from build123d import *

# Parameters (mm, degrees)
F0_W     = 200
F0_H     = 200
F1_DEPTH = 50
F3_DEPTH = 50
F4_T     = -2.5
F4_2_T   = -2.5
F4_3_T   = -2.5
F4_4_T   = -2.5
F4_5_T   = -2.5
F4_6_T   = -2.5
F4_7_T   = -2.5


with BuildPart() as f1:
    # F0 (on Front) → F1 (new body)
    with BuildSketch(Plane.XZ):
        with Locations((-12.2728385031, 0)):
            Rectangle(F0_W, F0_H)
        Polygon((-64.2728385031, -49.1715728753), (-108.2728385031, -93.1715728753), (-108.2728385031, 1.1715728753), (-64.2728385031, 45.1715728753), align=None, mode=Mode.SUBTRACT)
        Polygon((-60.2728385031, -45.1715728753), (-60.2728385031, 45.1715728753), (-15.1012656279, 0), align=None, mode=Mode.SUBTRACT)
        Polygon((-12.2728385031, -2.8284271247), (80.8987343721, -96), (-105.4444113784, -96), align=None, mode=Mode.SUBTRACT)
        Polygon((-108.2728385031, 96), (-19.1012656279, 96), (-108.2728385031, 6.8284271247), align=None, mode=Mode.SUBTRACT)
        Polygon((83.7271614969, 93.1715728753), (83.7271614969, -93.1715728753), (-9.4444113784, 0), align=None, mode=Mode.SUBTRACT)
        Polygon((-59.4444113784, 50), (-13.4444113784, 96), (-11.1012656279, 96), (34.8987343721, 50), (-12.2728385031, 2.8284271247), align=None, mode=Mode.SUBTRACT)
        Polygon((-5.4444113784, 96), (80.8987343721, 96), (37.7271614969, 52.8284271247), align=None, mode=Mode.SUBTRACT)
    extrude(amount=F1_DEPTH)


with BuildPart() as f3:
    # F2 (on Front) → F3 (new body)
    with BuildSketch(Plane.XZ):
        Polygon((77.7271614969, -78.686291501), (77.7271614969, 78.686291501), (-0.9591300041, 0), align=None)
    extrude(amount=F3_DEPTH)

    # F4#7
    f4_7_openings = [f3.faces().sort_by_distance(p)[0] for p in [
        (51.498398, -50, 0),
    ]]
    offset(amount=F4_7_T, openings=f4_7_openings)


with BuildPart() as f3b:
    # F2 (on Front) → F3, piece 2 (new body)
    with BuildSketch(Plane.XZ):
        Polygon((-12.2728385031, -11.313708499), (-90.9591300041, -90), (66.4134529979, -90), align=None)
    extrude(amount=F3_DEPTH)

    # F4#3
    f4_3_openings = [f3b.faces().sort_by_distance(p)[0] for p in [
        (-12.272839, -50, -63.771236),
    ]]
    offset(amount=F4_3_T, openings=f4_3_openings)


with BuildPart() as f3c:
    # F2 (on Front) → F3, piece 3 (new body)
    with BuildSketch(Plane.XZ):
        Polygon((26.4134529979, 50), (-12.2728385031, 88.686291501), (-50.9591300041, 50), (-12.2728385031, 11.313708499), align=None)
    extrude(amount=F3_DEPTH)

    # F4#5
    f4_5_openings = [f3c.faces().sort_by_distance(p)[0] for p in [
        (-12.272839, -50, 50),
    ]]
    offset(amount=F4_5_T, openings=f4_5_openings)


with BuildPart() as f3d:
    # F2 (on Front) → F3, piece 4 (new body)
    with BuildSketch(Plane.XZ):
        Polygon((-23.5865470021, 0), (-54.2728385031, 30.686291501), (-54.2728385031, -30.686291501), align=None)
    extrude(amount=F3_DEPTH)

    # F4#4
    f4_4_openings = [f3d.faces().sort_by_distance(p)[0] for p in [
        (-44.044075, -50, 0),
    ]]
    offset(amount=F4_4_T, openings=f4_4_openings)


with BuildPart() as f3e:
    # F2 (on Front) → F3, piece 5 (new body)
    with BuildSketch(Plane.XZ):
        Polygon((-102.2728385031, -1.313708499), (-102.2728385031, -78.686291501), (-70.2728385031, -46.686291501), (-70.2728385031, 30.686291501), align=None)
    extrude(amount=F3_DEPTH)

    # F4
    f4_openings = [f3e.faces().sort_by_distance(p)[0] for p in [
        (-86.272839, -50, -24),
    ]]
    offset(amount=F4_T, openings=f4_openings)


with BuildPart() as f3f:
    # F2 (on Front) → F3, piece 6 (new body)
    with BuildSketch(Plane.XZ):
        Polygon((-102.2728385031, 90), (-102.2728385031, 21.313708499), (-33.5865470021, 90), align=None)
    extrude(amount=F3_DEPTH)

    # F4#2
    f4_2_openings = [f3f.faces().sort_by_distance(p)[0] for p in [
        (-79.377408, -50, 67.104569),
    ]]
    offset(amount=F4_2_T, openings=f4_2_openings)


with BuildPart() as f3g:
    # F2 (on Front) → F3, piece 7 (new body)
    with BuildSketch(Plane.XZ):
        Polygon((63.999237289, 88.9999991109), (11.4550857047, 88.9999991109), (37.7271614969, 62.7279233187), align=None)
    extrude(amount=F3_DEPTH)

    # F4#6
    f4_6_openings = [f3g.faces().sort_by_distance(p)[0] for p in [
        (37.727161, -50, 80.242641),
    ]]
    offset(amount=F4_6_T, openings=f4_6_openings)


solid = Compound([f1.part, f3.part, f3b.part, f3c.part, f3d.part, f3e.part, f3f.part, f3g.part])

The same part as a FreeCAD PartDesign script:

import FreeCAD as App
import Part
import Sketcher
from FreeCAD import Vector
Q = App.Units.Quantity


def faces_at(feature, points):
    """Names of the faces that lie closest to the given points."""
    faces = feature.Shape.Faces
    near = lambda p: min(range(len(faces)), key=lambda i: faces[i].distToShape(Part.Vertex(*p))[0])
    return sorted({f"Face{near(p) + 1}" for p in points})


def add_polygon(sketch, points):
    """Adds a closed chain of lines whose ends are joined by coincident constraints."""
    first, n = sketch.GeometryCount, len(points)
    for a, b in zip(points, points[1:] + points[:1]):
        sketch.addGeometry(Part.LineSegment(App.Vector(*a, 0), App.Vector(*b, 0)), False)
    for i in range(n):
        sketch.addConstraint(Sketcher.Constraint("Coincident", first + i, 2, first + (i + 1) % n, 1))

doc = App.newDocument("Part")
body = doc.addObject("PartDesign::Body", "Body")

sketch1 = doc.addObject("Sketcher::SketchObject", "Sketch")
body.addObject(sketch1)
sketch1.AttachmentSupport = (doc.XZ_Plane, [""])
sketch1.MapMode = "FlatFace"
add_polygon(sketch1, [(-112.272839, 100), (-112.272839, -100), (87.727161, -100), (87.727161, 100)])
add_polygon(sketch1, [(-105.444411, -96), (-12.272839, -2.828427), (80.898734, -96)])
add_polygon(sketch1, [(-64.272839, 45.171573), (-64.272839, -49.171573), (-108.272839, -93.171573), (-108.272839, 1.171573)])
add_polygon(sketch1, [(-15.101266, 0), (-60.272839, -45.171573), (-60.272839, 45.171573)])
add_polygon(sketch1, [(-108.272839, 6.828427), (-108.272839, 96), (-19.101266, 96)])
add_polygon(sketch1, [(-12.272839, 2.828427), (-59.444411, 50), (-13.444411, 96), (-11.101266, 96), (34.898734, 50)])
add_polygon(sketch1, [(-9.444411, 0), (83.727161, 93.171573), (83.727161, -93.171573)])
add_polygon(sketch1, [(37.727161, 52.828427), (-5.444411, 96), (80.898734, 96)])
sketch1.addConstraint([
    Sketcher.Constraint("Vertical", 0),
    Sketcher.Constraint("Horizontal", 1),
    Sketcher.Constraint("Vertical", 2),
    Sketcher.Constraint("Horizontal", 3),
    Sketcher.Constraint("Horizontal", 6),
    Sketcher.Constraint("Vertical", 7),
    Sketcher.Constraint("Vertical", 9),
    Sketcher.Constraint("Vertical", 12),
    Sketcher.Constraint("Vertical", 14),
    Sketcher.Constraint("Horizontal", 15),
    Sketcher.Constraint("Horizontal", 19),
    Sketcher.Constraint("Vertical", 23),
    Sketcher.Constraint("Horizontal", 26),
    Sketcher.Constraint("Symmetric", 4, 2, 21, 2, -1),
    Sketcher.Constraint("Symmetric", 5, 2, 26, 2, -1),
    Sketcher.Constraint("PointOnObject", 13, 2, -1),
    Sketcher.Constraint("PointOnObject", 24, 2, -1),
    Sketcher.Constraint("Perpendicular", 4, 5),
    Sketcher.Constraint("Perpendicular", 5, 8),
    Sketcher.Constraint("Parallel", 8, 10),
    Sketcher.Constraint("Parallel", 10, 11),
    Sketcher.Constraint("Perpendicular", 11, 13),
    Sketcher.Constraint("Perpendicular", 13, 16),
    Sketcher.Constraint("Perpendicular", 16, 17),
    Sketcher.Constraint("Perpendicular", 17, 18),
    Sketcher.Constraint("Perpendicular", 18, 20),
    Sketcher.Constraint("Perpendicular", 20, 21),
    Sketcher.Constraint("Parallel", 21, 22),
    Sketcher.Constraint("Perpendicular", 22, 24),
    Sketcher.Constraint("Parallel", 24, 25),
    Sketcher.Constraint("Perpendicular", 25, 27),
    Sketcher.Constraint("Horizontal", 10, 2, 12, 2),
    Sketcher.Constraint("Horizontal", 15, 2, 18, 2),
    Sketcher.Constraint("Horizontal", 17, 2, 20, 2),
    Sketcher.Constraint("Horizontal", 8, 2, 23, 2),
    Sketcher.Constraint("Horizontal", 19, 2, 25, 2),
    Sketcher.Constraint("Vertical", 9, 2, 14, 2),
    Sketcher.Constraint("Equal", 3, 0),
    Sketcher.Constraint("Equal", 15, 14),
    Sketcher.Constraint("Equal", 6, 23),
    Sketcher.Constraint("DistanceX", 1, 1, 1, 2, Q("200 mm")),
    Sketcher.Constraint("DistanceY", 0, 2, -1, 1, Q("100 mm")),
    Sketcher.Constraint("DistanceY", 5, 2, -1, 1, Q("96 mm")),
    Sketcher.Constraint("DistanceY", -1, 1, 17, 2, Q("50 mm")),
    Sketcher.Constraint("DistanceX", 0, 2, 4, 2, Q("100 mm")),
    Sketcher.Constraint("DistanceX", 7, 2, 4, 2, Q("52 mm")),
    Sketcher.Constraint("DistanceX", 0, 2, 8, 2, Q("4 mm")),
    Sketcher.Constraint("DistanceY", 4, 2, 9, 2, Q("4 mm")),
    Sketcher.Constraint("DistanceX", 7, 2, 11, 2, Q("4 mm")),
    Sketcher.Constraint("DistanceX", 15, 2, 13, 2, Q("4 mm")),
    Sketcher.Constraint("DistanceX", 22, 2, 2, 2, Q("4 mm")),
    Sketcher.Constraint("DistanceX", 18, 2, 25, 2, Q("8 mm")),
    Sketcher.Constraint("Distance", 4, Q("131.764502 mm")),
    Sketcher.Constraint("DistanceX", 0, 2, -1, 1, Q("112.272839 mm")),
])
pad1 = doc.addObject("PartDesign::Pad", "Pad")
body.addObject(pad1)
pad1.Profile = sketch1
pad1.Length = 50
body2 = doc.addObject("PartDesign::Body", "Body001")

sketch2 = doc.addObject("Sketcher::SketchObject", "Sketch001")
body2.addObject(sketch2)
sketch2.AttachmentSupport = (doc.getObject("XZ_Plane001"), [""])
sketch2.MapMode = "FlatFace"
add_polygon(sketch2, [(77.727161, -78.686292), (77.727161, 78.686292), (-0.95913, 0)])
sketch2.addConstraint([
    Sketcher.Constraint("Vertical", 0),
    Sketcher.Constraint("PointOnObject", 1, 2, -1),
    Sketcher.Constraint("Perpendicular", 1, 2),
    Sketcher.Constraint("Equal", 1, 2),
    Sketcher.Constraint("Distance", 1, Q("111.279221 mm")),
    Sketcher.Constraint("DistanceX", -1, 1, 0, 2, Q("77.727161 mm")),
])
pad2 = doc.addObject("PartDesign::Pad", "Pad001")
body2.addObject(pad2)
pad2.Profile = sketch2
pad2.Length = 50
doc.recompute()

thickness = doc.addObject("PartDesign::Thickness", "Thickness")
body2.addObject(thickness)
thickness.Base = (pad2, faces_at(pad2, [(38.384, -50, 0)]))
thickness.Value = 2.5
thickness.Reversed = True
thickness.Join = "Arc"
body3 = doc.addObject("PartDesign::Body", "Body002")

sketch3 = doc.addObject("Sketcher::SketchObject", "Sketch002")
body3.addObject(sketch3)
sketch3.AttachmentSupport = (doc.getObject("XZ_Plane002"), [""])
sketch3.MapMode = "FlatFace"
add_polygon(sketch3, [(-12.272839, -11.313708), (-90.95913, -90), (66.413453, -90)])
sketch3.addConstraint([
    Sketcher.Constraint("Horizontal", 1),
    Sketcher.Constraint("Perpendicular", 0, 2),
    Sketcher.Constraint("Equal", 0, 2),
    Sketcher.Constraint("DistanceY", 0, 2, -1, 1, Q("90 mm")),
    Sketcher.Constraint("Distance", 0, Q("111.279221 mm")),
    Sketcher.Constraint("DistanceX", 0, 2, -1, 1, Q("90.95913 mm")),
])
pad3 = doc.addObject("PartDesign::Pad", "Pad002")
body3.addObject(pad3)
pad3.Profile = sketch3
pad3.Length = 50
doc.recompute()

thickness2 = doc.addObject("PartDesign::Thickness", "Thickness001")
body3.addObject(thickness2)
thickness2.Base = (pad3, faces_at(pad3, [(-12.273, -50, -50.657)]))
thickness2.Value = 2.5
thickness2.Reversed = True
thickness2.Join = "Arc"
body4 = doc.addObject("PartDesign::Body", "Body003")

sketch4 = doc.addObject("Sketcher::SketchObject", "Sketch003")
body4.addObject(sketch4)
sketch4.AttachmentSupport = (doc.getObject("XZ_Plane003"), [""])
sketch4.MapMode = "FlatFace"
add_polygon(sketch4, [(26.413453, 50), (-12.272839, 88.686292), (-50.95913, 50), (-12.272839, 11.313708)])
sketch4.addConstraint([
    Sketcher.Constraint("Perpendicular", 0, 1),
    Sketcher.Constraint("Perpendicular", 1, 2),
    Sketcher.Constraint("Perpendicular", 2, 3),
    Sketcher.Constraint("Horizontal", 1, 2, 3, 2),
    Sketcher.Constraint("Vertical", 0, 2, 2, 2),
    Sketcher.Constraint("DistanceY", -1, 1, 1, 2, Q("50 mm")),
    Sketcher.Constraint("Distance", 0, Q("54.710678 mm")),
    Sketcher.Constraint("DistanceX", 0, 2, -1, 1, Q("12.272839 mm")),
])
pad4 = doc.addObject("PartDesign::Pad", "Pad003")
body4.addObject(pad4)
pad4.Profile = sketch4
pad4.Length = 50
doc.recompute()

thickness3 = doc.addObject("PartDesign::Thickness", "Thickness002")
body4.addObject(thickness3)
thickness3.Base = (pad4, faces_at(pad4, [(-12.273, -50, 50)]))
thickness3.Value = 2.5
thickness3.Reversed = True
thickness3.Join = "Arc"
body5 = doc.addObject("PartDesign::Body", "Body004")

sketch5 = doc.addObject("Sketcher::SketchObject", "Sketch004")
body5.addObject(sketch5)
sketch5.AttachmentSupport = (doc.getObject("XZ_Plane004"), [""])
sketch5.MapMode = "FlatFace"
add_polygon(sketch5, [(-23.586547, 0), (-54.272839, 30.686292), (-54.272839, -30.686292)])
sketch5.addConstraint([
    Sketcher.Constraint("Vertical", 1),
    Sketcher.Constraint("PointOnObject", 2, 2, -1),
    Sketcher.Constraint("Perpendicular", 0, 2),
    Sketcher.Constraint("Equal", 0, 2),
    Sketcher.Constraint("Distance", 0, Q("43.39697 mm")),
    Sketcher.Constraint("DistanceX", 0, 2, -1, 1, Q("54.272839 mm")),
])
pad5 = doc.addObject("PartDesign::Pad", "Pad004")
body5.addObject(pad5)
pad5.Profile = sketch5
pad5.Length = 50
doc.recompute()

thickness4 = doc.addObject("PartDesign::Thickness", "Thickness003")
body5.addObject(thickness4)
thickness4.Base = (pad5, faces_at(pad5, [(-38.93, -50, 0)]))
thickness4.Value = 2.5
thickness4.Reversed = True
thickness4.Join = "Arc"
body6 = doc.addObject("PartDesign::Body", "Body005")

sketch6 = doc.addObject("Sketcher::SketchObject", "Sketch005")
body6.addObject(sketch6)
sketch6.AttachmentSupport = (doc.getObject("XZ_Plane005"), [""])
sketch6.MapMode = "FlatFace"
add_polygon(sketch6, [(-102.272839, -1.313708), (-102.272839, -78.686292), (-70.272839, -46.686292), (-70.272839, 30.686292)])
sketch6.addConstraint([
    Sketcher.Constraint("Vertical", 0),
    Sketcher.Constraint("Vertical", 2),
    Sketcher.Constraint("Parallel", 1, 3),
    Sketcher.Constraint("Angle", 1, Q("45 deg")),
    Sketcher.Constraint("DistanceX", 0, 2, 1, 2, Q("32 mm")),
    Sketcher.Constraint("DistanceY", 0, 2, 0, 1, Q("77.372583 mm")),
    Sketcher.Constraint("DistanceX", 0, 2, -1, 1, Q("102.272839 mm")),
    Sketcher.Constraint("DistanceY", 0, 2, -1, 1, Q("78.686292 mm")),
])
pad6 = doc.addObject("PartDesign::Pad", "Pad005")
body6.addObject(pad6)
pad6.Profile = sketch6
pad6.Length = 50
doc.recompute()

thickness5 = doc.addObject("PartDesign::Thickness", "Thickness004")
body6.addObject(thickness5)
thickness5.Base = (pad6, faces_at(pad6, [(-86.273, -50, -24)]))
thickness5.Value = 2.5
thickness5.Reversed = True
thickness5.Join = "Arc"
body7 = doc.addObject("PartDesign::Body", "Body006")

sketch7 = doc.addObject("Sketcher::SketchObject", "Sketch006")
body7.addObject(sketch7)
sketch7.AttachmentSupport = (doc.getObject("XZ_Plane006"), [""])
sketch7.MapMode = "FlatFace"
add_polygon(sketch7, [(-102.272839, 90), (-102.272839, 21.313708), (-33.586547, 90)])
sketch7.addConstraint([
    Sketcher.Constraint("Vertical", 0),
    Sketcher.Constraint("Horizontal", 2),
    Sketcher.Constraint("Equal", 2, 0),
    Sketcher.Constraint("DistanceY", -1, 1, 1, 2, Q("90 mm")),
    Sketcher.Constraint("DistanceX", 2, 2, 2, 1, Q("68.686292 mm")),
    Sketcher.Constraint("DistanceX", 0, 2, -1, 1, Q("102.272839 mm")),
])
pad7 = doc.addObject("PartDesign::Pad", "Pad006")
body7.addObject(pad7)
pad7.Profile = sketch7
pad7.Length = 50
doc.recompute()

thickness6 = doc.addObject("PartDesign::Thickness", "Thickness005")
body7.addObject(thickness6)
thickness6.Base = (pad7, faces_at(pad7, [(-67.93, -50, 55.657)]))
thickness6.Value = 2.5
thickness6.Reversed = True
thickness6.Join = "Arc"
body8 = doc.addObject("PartDesign::Body", "Body007")

sketch8 = doc.addObject("Sketcher::SketchObject", "Sketch007")
body8.addObject(sketch8)
sketch8.AttachmentSupport = (doc.getObject("XZ_Plane007"), [""])
sketch8.MapMode = "FlatFace"
add_polygon(sketch8, [(63.999237, 88.999999), (11.455086, 88.999999), (37.727161, 62.727923)])
sketch8.addConstraint([
    Sketcher.Constraint("Horizontal", 0),
    Sketcher.Constraint("Perpendicular", 1, 2),
    Sketcher.Constraint("Equal", 1, 2),
    Sketcher.Constraint("DistanceY", -1, 1, 0, 2, Q("88.999999 mm")),
    Sketcher.Constraint("DistanceX", 0, 2, 0, 1, Q("52.544152 mm")),
    Sketcher.Constraint("DistanceX", -1, 1, 1, 2, Q("37.727161 mm")),
])
pad8 = doc.addObject("PartDesign::Pad", "Pad007")
body8.addObject(pad8)
pad8.Profile = sketch8
pad8.Length = 50
doc.recompute()

thickness7 = doc.addObject("PartDesign::Thickness", "Thickness006")
body8.addObject(thickness7)
thickness7.Base = (pad8, faces_at(pad8, [(37.727, -50, 75.864)]))
thickness7.Value = 2.5
thickness7.Reversed = True
thickness7.Join = "Arc"

doc.recompute()
